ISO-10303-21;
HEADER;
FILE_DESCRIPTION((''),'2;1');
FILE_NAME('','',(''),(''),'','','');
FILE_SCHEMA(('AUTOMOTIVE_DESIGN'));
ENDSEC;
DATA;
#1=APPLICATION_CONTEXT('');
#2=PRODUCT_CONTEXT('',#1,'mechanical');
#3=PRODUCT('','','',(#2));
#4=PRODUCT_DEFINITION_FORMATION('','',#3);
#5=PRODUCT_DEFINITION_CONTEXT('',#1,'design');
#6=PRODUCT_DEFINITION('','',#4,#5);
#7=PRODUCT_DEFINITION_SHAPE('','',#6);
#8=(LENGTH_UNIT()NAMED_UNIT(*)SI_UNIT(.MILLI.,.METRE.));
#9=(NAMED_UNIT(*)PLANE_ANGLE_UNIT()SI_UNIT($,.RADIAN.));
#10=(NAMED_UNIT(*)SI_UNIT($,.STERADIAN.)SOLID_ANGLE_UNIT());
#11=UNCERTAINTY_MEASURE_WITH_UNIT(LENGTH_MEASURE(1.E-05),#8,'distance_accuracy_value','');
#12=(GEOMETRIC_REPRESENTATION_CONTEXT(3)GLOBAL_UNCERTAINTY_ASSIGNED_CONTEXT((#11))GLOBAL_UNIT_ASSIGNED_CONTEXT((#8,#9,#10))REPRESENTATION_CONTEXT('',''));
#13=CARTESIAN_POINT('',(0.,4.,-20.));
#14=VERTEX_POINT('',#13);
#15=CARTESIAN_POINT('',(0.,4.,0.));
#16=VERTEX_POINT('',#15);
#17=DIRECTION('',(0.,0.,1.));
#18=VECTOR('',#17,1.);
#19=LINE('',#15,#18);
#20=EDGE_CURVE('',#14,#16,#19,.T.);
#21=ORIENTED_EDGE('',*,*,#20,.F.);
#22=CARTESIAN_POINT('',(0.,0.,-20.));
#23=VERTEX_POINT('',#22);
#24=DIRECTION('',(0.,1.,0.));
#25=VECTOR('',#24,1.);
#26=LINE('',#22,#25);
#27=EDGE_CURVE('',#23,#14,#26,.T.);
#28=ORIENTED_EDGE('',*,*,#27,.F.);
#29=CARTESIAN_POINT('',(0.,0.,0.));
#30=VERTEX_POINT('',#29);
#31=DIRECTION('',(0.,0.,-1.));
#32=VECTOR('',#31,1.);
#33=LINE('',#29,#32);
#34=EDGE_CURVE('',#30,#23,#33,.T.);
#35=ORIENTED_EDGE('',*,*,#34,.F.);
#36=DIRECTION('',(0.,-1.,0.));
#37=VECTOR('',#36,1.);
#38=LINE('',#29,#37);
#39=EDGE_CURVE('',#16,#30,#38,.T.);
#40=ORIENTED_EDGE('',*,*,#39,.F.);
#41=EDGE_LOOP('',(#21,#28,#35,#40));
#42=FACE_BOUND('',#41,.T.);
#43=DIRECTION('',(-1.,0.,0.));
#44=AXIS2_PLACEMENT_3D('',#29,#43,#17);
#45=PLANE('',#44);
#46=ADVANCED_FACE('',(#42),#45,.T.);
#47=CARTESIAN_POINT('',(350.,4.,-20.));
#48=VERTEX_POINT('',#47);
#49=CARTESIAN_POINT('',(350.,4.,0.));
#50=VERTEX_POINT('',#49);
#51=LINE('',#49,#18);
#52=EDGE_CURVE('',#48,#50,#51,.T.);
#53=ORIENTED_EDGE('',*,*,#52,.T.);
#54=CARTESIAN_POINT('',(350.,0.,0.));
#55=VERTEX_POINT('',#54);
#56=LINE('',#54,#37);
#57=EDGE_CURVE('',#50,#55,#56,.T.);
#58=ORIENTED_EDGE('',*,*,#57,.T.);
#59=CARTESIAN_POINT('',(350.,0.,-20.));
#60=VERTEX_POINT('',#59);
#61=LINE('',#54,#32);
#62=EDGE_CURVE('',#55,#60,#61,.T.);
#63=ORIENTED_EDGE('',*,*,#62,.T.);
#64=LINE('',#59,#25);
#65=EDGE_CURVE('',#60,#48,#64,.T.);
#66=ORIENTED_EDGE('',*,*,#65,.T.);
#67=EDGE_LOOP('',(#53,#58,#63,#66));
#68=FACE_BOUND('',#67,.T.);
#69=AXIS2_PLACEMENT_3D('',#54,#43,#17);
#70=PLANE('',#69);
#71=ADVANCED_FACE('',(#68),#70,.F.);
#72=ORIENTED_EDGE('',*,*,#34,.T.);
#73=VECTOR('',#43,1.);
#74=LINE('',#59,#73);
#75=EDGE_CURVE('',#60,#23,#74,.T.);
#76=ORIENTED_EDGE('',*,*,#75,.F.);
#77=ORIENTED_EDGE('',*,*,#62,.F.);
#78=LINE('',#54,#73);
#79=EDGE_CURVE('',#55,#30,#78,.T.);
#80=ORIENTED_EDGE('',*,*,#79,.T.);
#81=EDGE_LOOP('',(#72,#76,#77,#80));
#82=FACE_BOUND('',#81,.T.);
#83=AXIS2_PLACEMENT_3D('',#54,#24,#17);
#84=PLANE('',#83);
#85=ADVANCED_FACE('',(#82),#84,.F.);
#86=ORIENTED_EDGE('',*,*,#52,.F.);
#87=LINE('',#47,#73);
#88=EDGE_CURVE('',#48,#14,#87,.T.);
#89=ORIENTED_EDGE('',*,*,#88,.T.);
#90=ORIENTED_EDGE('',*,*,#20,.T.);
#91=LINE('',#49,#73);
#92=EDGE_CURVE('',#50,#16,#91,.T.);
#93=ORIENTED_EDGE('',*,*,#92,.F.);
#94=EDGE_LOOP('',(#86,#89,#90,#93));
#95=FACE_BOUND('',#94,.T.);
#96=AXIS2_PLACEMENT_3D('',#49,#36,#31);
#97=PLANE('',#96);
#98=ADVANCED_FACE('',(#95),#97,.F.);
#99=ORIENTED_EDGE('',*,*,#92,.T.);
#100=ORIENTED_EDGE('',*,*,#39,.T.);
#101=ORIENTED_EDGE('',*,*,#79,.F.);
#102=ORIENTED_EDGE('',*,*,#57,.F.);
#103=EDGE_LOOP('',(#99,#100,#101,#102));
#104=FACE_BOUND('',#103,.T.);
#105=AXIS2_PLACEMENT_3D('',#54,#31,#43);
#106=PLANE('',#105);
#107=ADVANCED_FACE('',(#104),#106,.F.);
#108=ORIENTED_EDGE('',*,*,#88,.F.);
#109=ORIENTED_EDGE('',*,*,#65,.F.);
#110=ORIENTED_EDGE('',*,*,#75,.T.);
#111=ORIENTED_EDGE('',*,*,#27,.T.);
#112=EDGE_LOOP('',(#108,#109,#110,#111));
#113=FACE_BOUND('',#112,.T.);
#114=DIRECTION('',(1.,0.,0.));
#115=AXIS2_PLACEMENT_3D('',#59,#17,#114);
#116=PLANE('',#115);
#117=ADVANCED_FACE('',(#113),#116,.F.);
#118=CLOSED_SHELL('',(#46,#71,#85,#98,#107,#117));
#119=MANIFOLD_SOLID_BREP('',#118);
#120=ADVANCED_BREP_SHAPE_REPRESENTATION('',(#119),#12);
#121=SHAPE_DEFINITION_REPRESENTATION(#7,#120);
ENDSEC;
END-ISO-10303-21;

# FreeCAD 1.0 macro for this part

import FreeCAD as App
import Part
import Sketcher

V = App.Vector


def add_polygon(sketch, points):
    """Adds a closed chain of lines whose ends are joined by coincident constraints."""
    first, n = sketch.GeometryCount, len(points)
    for a, b in zip(points, points[1:] + points[:1]):
        sketch.addGeometry(Part.LineSegment(App.Vector(*a, 0), App.Vector(*b, 0)), False)
    for i in range(n):
        sketch.addConstraint(Sketcher.Constraint("Coincident", first + i, 2, first + (i + 1) % n, 1))

doc = App.newDocument("Part")
body = doc.addObject("PartDesign::Body", "Body")

sketch1 = body.newObject("Sketcher::SketchObject", "Sketch")
sketch1.AttachmentSupport = (doc.getObject("YZ_Plane"), [""])
sketch1.MapMode = "FlatFace"
add_polygon(sketch1, [(4, 0), (0, 0), (0, -20), (4, -20)])
sketch1.addConstraint([
    Sketcher.Constraint("Horizontal", 0),
    Sketcher.Constraint("Vertical", 1),
    Sketcher.Constraint("Horizontal", 2),
    Sketcher.Constraint("Vertical", 3),
    Sketcher.Constraint("Coincident", 0, 2, -1, 1),
    Sketcher.Constraint("DistanceX", 0, 2, 0, 1, 4.0),
    Sketcher.Constraint("DistanceY", 1, 2, 1, 1, 20.0),
])
pad1 = body.newObject("PartDesign::Pad", "Pad")
pad1.Profile = sketch1
pad1.Length = 350

doc.recompute()
